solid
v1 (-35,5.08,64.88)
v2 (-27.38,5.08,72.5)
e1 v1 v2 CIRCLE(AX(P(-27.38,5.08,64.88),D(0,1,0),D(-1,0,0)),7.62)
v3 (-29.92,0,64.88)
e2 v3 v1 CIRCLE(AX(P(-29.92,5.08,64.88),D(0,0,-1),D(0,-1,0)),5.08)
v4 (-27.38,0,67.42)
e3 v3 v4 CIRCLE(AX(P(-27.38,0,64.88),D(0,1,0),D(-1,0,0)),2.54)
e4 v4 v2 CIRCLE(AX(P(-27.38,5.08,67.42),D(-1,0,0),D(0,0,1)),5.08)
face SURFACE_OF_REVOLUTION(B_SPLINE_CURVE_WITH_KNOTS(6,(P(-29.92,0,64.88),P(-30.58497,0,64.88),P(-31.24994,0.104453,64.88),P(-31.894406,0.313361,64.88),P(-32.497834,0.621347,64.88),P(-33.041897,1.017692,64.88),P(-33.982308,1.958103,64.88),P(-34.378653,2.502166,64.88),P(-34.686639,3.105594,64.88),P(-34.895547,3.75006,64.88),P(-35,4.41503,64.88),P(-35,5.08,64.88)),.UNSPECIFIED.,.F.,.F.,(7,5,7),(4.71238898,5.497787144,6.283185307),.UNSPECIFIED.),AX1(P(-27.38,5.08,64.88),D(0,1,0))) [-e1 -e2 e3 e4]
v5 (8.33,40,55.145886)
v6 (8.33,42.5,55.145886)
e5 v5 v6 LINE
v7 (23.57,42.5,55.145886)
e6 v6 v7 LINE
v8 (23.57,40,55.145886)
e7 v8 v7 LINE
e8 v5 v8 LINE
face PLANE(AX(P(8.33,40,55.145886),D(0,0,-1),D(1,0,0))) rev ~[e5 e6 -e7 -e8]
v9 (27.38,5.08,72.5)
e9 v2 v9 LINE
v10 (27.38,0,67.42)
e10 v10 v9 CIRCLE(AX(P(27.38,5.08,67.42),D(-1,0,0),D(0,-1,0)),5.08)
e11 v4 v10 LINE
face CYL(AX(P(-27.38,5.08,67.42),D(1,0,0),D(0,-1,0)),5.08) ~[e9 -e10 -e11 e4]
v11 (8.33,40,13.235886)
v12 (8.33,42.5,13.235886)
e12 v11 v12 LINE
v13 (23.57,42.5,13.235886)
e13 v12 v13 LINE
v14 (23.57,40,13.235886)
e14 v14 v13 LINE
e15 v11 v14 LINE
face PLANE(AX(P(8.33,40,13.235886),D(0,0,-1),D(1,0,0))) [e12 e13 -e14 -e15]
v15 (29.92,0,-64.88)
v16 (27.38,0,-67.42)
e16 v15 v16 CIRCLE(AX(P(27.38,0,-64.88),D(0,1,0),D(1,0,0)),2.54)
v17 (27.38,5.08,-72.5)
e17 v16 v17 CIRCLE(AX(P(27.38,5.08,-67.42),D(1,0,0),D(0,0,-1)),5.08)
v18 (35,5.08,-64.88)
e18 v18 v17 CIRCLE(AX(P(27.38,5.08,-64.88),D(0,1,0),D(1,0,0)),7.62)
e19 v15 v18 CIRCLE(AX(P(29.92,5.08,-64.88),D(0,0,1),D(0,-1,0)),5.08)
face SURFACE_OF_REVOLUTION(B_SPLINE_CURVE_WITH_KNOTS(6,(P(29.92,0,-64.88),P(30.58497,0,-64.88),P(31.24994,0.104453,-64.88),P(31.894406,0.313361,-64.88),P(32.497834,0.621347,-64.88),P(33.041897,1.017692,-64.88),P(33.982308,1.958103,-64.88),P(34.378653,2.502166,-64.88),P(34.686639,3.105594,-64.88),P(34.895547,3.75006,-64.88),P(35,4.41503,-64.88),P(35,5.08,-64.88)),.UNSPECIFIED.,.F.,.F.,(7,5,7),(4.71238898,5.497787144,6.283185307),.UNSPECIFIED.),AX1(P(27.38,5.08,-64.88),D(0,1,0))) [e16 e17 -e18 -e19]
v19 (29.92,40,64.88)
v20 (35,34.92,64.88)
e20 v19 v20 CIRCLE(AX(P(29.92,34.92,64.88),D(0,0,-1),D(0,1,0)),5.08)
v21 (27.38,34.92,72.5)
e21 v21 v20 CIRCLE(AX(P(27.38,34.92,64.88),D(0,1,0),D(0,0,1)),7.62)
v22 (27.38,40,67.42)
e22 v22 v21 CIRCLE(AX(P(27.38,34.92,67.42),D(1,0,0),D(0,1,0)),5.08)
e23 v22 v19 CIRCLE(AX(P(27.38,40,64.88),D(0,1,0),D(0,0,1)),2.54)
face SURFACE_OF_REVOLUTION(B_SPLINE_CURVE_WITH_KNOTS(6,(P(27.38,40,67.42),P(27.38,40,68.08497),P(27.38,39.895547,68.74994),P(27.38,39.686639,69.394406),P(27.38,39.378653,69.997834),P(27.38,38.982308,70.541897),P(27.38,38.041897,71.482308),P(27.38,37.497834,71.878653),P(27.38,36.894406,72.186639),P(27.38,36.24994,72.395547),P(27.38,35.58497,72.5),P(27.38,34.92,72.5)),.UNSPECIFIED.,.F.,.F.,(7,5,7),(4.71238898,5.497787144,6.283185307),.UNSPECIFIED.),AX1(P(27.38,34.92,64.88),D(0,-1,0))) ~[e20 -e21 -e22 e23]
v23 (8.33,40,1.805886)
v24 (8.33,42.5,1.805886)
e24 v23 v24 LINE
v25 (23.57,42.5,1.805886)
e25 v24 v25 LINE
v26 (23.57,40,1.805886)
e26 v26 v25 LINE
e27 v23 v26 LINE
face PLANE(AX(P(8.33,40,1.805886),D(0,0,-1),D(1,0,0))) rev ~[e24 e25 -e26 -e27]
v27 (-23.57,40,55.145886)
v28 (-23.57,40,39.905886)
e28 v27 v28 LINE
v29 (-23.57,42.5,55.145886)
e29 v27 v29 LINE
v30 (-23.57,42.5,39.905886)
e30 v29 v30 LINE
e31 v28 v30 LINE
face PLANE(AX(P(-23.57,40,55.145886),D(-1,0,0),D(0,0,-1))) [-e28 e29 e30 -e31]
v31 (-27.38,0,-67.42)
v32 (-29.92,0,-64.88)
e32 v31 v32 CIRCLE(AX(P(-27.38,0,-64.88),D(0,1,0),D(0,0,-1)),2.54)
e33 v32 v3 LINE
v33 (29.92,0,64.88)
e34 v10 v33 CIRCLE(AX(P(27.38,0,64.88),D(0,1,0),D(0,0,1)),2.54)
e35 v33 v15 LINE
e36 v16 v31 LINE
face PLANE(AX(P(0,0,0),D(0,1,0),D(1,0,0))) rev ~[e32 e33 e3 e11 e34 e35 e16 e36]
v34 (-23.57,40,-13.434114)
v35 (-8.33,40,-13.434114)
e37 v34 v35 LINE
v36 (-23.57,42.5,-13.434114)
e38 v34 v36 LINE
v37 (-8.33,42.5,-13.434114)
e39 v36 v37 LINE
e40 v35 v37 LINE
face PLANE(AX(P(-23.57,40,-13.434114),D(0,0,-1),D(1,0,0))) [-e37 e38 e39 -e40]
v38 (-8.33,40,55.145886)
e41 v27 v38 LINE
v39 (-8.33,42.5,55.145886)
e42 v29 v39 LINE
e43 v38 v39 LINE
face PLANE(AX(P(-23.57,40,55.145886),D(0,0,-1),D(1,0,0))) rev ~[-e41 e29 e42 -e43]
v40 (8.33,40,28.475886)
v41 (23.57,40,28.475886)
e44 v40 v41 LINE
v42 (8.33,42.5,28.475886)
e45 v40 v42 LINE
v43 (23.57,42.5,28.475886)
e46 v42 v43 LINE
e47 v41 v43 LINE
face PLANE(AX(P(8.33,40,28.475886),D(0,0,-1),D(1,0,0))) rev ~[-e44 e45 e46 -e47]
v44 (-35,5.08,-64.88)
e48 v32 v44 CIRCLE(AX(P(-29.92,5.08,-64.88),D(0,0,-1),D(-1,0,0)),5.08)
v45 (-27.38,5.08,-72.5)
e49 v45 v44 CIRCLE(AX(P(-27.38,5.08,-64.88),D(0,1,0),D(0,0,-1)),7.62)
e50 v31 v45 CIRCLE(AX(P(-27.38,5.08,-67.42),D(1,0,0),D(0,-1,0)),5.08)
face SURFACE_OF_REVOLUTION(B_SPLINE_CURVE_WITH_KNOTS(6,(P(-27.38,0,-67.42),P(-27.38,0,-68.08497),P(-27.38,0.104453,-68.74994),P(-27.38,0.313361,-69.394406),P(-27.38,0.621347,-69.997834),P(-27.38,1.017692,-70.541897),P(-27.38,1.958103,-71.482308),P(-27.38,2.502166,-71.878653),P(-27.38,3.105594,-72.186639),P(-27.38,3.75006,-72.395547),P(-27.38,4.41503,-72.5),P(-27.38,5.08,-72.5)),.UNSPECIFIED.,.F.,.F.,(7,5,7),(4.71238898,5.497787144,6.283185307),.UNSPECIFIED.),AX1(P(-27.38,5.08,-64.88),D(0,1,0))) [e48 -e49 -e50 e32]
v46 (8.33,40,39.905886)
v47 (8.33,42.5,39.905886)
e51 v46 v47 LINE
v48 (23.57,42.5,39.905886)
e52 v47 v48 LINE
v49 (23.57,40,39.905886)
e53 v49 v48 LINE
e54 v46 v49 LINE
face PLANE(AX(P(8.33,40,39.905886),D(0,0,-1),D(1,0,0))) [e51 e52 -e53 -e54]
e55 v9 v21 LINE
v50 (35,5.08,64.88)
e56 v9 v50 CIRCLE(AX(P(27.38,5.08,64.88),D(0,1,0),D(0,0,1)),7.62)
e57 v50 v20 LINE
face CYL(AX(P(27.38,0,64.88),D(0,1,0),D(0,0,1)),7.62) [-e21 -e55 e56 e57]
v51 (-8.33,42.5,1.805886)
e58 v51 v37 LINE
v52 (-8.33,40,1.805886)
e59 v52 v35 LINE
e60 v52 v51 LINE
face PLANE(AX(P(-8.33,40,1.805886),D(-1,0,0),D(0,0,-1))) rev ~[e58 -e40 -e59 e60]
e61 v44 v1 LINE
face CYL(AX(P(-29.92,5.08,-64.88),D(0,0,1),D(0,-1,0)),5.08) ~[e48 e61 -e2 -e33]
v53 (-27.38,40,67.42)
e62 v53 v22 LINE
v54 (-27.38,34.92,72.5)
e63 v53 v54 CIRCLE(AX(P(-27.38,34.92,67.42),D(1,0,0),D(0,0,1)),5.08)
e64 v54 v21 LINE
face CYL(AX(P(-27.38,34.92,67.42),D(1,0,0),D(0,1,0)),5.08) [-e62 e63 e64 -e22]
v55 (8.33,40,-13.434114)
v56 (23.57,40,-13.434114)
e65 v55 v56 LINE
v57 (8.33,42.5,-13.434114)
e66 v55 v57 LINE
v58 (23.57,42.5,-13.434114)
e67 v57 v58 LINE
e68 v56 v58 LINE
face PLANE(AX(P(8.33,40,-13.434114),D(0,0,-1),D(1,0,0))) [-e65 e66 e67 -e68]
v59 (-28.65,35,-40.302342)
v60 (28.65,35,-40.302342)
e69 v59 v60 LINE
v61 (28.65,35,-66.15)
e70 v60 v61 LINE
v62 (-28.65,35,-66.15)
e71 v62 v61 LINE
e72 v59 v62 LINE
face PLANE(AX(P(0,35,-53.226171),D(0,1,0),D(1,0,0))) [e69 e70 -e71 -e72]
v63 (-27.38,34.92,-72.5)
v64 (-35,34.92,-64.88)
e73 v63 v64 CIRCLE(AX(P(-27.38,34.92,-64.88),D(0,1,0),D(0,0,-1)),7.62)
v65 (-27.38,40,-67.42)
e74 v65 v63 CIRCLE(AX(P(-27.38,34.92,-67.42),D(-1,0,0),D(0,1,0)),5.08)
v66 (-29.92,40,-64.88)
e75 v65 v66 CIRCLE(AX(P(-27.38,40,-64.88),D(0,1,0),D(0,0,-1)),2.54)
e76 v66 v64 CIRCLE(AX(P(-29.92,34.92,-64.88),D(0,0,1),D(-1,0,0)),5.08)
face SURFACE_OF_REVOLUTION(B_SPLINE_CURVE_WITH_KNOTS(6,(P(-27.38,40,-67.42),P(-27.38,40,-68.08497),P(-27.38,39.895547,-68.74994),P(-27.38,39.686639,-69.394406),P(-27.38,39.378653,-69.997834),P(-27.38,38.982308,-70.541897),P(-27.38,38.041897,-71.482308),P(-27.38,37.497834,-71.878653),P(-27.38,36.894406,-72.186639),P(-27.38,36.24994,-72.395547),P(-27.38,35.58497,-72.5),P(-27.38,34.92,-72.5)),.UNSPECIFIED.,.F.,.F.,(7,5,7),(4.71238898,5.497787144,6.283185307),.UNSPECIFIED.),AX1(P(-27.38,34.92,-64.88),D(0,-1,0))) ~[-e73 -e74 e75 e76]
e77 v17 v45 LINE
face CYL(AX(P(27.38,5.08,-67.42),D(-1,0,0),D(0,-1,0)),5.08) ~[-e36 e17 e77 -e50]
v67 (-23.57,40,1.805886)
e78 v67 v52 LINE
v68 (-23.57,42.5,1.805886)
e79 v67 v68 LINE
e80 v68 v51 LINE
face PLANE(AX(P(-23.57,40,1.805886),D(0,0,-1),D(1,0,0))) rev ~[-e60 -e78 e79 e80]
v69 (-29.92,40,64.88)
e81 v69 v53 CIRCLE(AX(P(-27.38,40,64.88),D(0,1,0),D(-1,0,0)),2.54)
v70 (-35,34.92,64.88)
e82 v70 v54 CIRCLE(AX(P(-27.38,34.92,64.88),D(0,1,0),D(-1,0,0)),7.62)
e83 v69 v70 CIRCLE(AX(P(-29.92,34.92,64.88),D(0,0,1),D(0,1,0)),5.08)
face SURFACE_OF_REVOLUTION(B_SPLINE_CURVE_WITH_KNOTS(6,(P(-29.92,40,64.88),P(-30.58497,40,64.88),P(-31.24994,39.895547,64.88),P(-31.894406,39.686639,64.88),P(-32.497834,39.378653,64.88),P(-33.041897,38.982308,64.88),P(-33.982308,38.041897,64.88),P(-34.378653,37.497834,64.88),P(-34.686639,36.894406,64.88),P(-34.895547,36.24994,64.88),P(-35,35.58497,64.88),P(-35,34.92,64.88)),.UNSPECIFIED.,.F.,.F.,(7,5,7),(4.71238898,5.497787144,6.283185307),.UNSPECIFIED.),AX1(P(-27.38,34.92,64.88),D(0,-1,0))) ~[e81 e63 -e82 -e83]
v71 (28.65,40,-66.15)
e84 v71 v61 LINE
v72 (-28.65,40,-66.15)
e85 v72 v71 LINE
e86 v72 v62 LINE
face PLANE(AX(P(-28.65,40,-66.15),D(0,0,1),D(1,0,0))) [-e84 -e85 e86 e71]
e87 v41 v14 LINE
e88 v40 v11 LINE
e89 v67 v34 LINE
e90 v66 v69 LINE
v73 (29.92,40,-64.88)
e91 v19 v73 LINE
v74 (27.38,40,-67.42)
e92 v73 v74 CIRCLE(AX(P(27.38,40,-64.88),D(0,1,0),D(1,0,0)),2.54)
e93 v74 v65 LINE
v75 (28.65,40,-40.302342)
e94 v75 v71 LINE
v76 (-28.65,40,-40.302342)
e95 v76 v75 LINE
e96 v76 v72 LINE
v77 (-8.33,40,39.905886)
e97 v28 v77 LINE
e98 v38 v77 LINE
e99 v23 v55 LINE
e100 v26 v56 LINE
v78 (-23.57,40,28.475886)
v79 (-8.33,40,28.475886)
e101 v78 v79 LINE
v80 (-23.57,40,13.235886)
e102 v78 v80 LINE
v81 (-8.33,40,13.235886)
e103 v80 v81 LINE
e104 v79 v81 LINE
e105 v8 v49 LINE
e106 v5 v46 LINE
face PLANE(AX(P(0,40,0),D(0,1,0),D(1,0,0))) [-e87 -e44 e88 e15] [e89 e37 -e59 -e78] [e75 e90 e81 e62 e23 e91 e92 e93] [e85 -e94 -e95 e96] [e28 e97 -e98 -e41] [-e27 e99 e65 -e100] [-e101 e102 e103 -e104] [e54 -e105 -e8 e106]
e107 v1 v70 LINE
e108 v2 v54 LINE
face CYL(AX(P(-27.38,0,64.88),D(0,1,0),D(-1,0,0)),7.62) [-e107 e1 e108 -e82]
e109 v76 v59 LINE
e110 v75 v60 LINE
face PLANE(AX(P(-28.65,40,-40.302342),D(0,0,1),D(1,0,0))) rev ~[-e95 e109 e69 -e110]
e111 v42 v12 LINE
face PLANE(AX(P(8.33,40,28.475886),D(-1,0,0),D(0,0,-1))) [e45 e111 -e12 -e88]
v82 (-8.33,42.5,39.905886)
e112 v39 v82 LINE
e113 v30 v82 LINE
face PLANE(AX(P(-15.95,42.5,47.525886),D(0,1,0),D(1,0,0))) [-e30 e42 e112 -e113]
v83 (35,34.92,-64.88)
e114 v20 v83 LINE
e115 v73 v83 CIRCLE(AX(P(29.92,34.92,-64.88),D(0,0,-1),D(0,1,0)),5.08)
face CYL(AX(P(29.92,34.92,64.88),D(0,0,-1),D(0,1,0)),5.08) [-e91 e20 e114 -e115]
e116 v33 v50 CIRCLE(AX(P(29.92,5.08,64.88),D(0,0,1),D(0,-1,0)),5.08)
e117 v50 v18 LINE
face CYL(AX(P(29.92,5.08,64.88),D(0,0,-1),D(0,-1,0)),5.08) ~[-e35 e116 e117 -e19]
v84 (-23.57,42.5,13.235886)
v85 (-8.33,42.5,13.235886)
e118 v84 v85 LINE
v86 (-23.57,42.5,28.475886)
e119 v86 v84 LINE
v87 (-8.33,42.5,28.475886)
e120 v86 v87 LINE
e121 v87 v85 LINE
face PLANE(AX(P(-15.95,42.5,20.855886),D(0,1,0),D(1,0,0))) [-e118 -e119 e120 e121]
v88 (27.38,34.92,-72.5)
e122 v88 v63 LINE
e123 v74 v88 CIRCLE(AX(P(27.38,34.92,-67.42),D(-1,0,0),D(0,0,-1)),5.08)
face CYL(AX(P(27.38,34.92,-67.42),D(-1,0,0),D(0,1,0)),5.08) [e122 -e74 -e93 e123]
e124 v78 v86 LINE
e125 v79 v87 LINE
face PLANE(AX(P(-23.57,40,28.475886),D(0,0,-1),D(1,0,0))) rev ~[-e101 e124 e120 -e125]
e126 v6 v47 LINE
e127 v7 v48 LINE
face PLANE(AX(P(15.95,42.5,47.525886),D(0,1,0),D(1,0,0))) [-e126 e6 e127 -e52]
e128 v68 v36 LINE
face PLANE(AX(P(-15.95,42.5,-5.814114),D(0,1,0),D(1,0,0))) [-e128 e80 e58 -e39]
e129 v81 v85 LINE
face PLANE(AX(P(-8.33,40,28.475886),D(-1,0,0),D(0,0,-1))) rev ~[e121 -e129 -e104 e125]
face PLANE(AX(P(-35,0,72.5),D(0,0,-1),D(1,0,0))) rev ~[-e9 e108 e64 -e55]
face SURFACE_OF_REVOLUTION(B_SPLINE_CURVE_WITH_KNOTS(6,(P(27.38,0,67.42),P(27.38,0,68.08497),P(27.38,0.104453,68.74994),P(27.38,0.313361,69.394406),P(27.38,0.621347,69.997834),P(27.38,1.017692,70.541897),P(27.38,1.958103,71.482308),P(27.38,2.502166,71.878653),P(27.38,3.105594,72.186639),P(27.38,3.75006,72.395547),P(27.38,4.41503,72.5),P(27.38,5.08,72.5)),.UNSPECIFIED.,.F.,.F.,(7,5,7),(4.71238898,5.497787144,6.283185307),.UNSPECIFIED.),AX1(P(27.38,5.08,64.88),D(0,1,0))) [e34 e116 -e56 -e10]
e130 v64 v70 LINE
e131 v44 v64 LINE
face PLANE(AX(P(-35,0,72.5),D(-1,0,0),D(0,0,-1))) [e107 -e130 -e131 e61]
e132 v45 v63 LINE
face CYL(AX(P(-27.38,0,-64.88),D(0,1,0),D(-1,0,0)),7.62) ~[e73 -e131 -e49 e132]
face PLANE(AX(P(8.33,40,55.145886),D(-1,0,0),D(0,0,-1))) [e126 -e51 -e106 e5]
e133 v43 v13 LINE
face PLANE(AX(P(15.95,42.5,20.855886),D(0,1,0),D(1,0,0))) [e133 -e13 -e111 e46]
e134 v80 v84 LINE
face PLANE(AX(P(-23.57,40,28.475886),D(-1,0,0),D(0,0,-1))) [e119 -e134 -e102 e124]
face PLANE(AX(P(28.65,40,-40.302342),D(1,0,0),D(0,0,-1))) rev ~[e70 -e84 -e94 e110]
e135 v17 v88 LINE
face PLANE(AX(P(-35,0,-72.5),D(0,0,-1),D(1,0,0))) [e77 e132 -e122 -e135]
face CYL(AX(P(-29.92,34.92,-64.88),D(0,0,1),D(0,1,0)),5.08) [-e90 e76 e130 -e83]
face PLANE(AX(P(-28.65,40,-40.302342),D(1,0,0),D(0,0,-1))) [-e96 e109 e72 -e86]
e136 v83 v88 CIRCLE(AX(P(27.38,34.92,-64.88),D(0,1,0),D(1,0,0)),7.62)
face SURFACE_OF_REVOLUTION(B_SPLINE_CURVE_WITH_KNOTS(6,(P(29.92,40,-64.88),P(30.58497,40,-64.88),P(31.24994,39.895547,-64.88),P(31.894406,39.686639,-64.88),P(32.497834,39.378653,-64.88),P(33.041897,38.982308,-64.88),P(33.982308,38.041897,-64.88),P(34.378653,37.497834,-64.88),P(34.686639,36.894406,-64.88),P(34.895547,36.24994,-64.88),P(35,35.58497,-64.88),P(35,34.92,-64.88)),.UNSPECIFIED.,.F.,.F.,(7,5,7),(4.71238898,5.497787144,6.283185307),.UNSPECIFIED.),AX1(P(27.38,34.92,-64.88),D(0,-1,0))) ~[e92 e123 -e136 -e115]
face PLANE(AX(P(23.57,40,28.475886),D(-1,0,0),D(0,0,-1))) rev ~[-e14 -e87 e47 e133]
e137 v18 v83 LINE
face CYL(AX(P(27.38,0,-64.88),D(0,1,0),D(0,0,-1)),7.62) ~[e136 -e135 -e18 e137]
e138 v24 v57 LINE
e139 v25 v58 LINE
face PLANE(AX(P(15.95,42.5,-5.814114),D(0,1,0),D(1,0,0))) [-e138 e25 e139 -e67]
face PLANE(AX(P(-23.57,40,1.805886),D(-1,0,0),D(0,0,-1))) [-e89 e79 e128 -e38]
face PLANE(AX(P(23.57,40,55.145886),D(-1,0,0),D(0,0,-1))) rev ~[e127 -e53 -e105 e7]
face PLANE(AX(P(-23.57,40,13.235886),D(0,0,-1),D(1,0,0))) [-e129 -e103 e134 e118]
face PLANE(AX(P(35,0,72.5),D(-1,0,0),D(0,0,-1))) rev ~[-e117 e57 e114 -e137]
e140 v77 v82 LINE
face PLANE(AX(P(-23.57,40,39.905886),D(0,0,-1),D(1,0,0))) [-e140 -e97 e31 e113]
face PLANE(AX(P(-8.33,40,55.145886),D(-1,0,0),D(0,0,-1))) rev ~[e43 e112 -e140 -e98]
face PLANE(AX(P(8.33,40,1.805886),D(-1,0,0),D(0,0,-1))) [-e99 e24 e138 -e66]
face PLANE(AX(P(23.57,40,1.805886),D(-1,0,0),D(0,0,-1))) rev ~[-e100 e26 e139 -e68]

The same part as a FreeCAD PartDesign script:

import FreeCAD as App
import Part
import Sketcher
from FreeCAD import Vector
Q = App.Units.Quantity


def edges_at(feature, points):
    """Names of the edges that pass closest to the given points."""
    edges = feature.Shape.Edges
    near = lambda p: min(range(len(edges)), key=lambda i: edges[i].distToShape(Part.Vertex(*p))[0])
    return sorted({f"Edge{near(p) + 1}" for p in points})

doc = App.newDocument("Part")
body = doc.addObject("PartDesign::Body", "Body")

# Sketch on XZ plane
sketch1 = body.newObject("Sketcher::SketchObject", "Sketch")
sketch1.AttachmentSupport = (doc.getObject("XZ_Plane"), [""])
sketch1.MapMode = "FlatFace"
sketch1.addGeometry([
    Part.LineSegment(Vector(-35, -72, 0), Vector(-35, 72, 0)),
    Part.LineSegment(Vector(-35, 72, 0), Vector(35, 72, 0)),
    Part.LineSegment(Vector(35, 72, 0), Vector(35, -72, 0)),
    Part.LineSegment(Vector(35, -72, 0), Vector(-35, -72, 0)),
], False)
sketch1.addConstraint([
    Sketcher.Constraint("Coincident", 0, 2, 1, 1),
    Sketcher.Constraint("Coincident", 1, 2, 2, 1),
    Sketcher.Constraint("Coincident", 2, 2, 3, 1),
    Sketcher.Constraint("Coincident", 3, 2, 0, 1),
    Sketcher.Constraint("Vertical", 0),
    Sketcher.Constraint("Horizontal", 1),
    Sketcher.Constraint("Vertical", 2),
    Sketcher.Constraint("Horizontal", 3),
    Sketcher.Constraint("Symmetric", 0, 2, 2, 2, -1, 1),
    Sketcher.Constraint("DistanceX", 1, 1, 1, 2, Q("70 mm")),
    Sketcher.Constraint("DistanceY", 0, 1, 0, 2, Q("145 mm")),
])
pad1 = body.newObject("PartDesign::Pad", "Pad")
pad1.Profile = sketch1
pad1.Length = 40
pad1.Reversed = True

# Sketch on XZ plane
sketch2 = body.newObject("Sketcher::SketchObject", "Sketch001")
sketch2.AttachmentSupport = (doc.getObject("XZ_Plane"), [""])
sketch2.MapMode = "FlatFace"
sketch2.AttachmentOffset = App.Placement(Vector(0, 0, -40), App.Rotation())
sketch2.addGeometry([
    Part.LineSegment(Vector(-29, -66, 0), Vector(-29, -40, 0)),
    Part.LineSegment(Vector(-29, -40, 0), Vector(29, -40, 0)),
    Part.LineSegment(Vector(29, -40, 0), Vector(29, -66, 0)),
    Part.LineSegment(Vector(29, -66, 0), Vector(-29, -66, 0)),
], False)
sketch2.addConstraint([
    Sketcher.Constraint("Coincident", 0, 2, 1, 1),
    Sketcher.Constraint("Coincident", 1, 2, 2, 1),
    Sketcher.Constraint("Coincident", 2, 2, 3, 1),
    Sketcher.Constraint("Coincident", 3, 2, 0, 1),
    Sketcher.Constraint("Vertical", 0),
    Sketcher.Constraint("Horizontal", 1),
    Sketcher.Constraint("Vertical", 2),
    Sketcher.Constraint("Horizontal", 3),
    Sketcher.Constraint("DistanceX", 1, 1, 1, 2, Q("57.3 mm")),
    Sketcher.Constraint("DistanceX", 0, 2, -1, 1, Q("28.65 mm")),
    Sketcher.Constraint("DistanceY", 2, 2, -1, 1, Q("66.15 mm")),
    Sketcher.Constraint("DistanceY", 0, 1, 0, 2, Q("25.847658 mm")),
])
pocket1 = body.newObject("PartDesign::Pocket", "Pocket")
pocket1.Profile = sketch2
pocket1.Length = 5
pocket1.Reversed = True

# Sketch on XZ plane
sketch3 = body.newObject("Sketcher::SketchObject", "Sketch002")
sketch3.AttachmentSupport = (doc.getObject("XZ_Plane"), [""])
sketch3.MapMode = "FlatFace"
sketch3.AttachmentOffset = App.Placement(Vector(0, 0, -40), App.Rotation())
sketch3.addGeometry([
    Part.LineSegment(Vector(-24, -13, 0), Vector(-24, 2, 0)),  # 0
    Part.LineSegment(Vector(-24, 2, 0), Vector(-8, 2, 0)),  # 1
    Part.LineSegment(Vector(-8, 2, 0), Vector(-8, -13, 0)),  # 2
    Part.LineSegment(Vector(-8, -13, 0), Vector(-24, -13, 0)),  # 3
    Part.LineSegment(Vector(8, -13, 0), Vector(8, 2, 0)),  # 4
    Part.LineSegment(Vector(8, 2, 0), Vector(24, 2, 0)),  # 5
    Part.LineSegment(Vector(24, 2, 0), Vector(24, -13, 0)),  # 6
    Part.LineSegment(Vector(24, -13, 0), Vector(8, -13, 0)),  # 7
], False)
sketch3.addConstraint([
    Sketcher.Constraint("Coincident", 0, 2, 1, 1),
    Sketcher.Constraint("Coincident", 1, 2, 2, 1),
    Sketcher.Constraint("Coincident", 2, 2, 3, 1),
    Sketcher.Constraint("Coincident", 3, 2, 0, 1),
    Sketcher.Constraint("Coincident", 4, 2, 5, 1),
    Sketcher.Constraint("Coincident", 5, 2, 6, 1),
    Sketcher.Constraint("Coincident", 6, 2, 7, 1),
    Sketcher.Constraint("Coincident", 7, 2, 4, 1),
    Sketcher.Constraint("Vertical", 0),
    Sketcher.Constraint("Horizontal", 1),
    Sketcher.Constraint("Vertical", 2),
    Sketcher.Constraint("Horizontal", 3),
    Sketcher.Constraint("Vertical", 4),
    Sketcher.Constraint("Horizontal", 5),
    Sketcher.Constraint("Vertical", 6),
    Sketcher.Constraint("Horizontal", 7),
    Sketcher.Constraint("Symmetric", 1, 2, 4, 2, -2),
    Sketcher.Constraint("Symmetric", 3, 2, 6, 2, -2),
    Sketcher.Constraint("Equal", 7, 0),
    Sketcher.Constraint("DistanceX", 1, 1, 1, 2, Q("15.24 mm")),
    Sketcher.Constraint("DistanceX", 0, 2, 4, 2, Q("31.9 mm")),
    Sketcher.Constraint("DistanceY", -1, 1, 0, 2, Q("1.805886 mm")),
])
pad2 = body.newObject("PartDesign::Pad", "Pad001")
pad2.Profile = sketch3
pad2.Length = 2.5
pad2.Reversed = True
doc.recompute()

linearpattern = body.newObject("PartDesign::LinearPattern", "LinearPattern")
linearpattern.Originals = [pad2]
linearpattern.Direction = (doc.getObject("Z_Axis"), [""])
linearpattern.Mode = "offset"
linearpattern.Offset = 26.67
linearpattern.Occurrences = 3
body.Tip = linearpattern
doc.recompute()

fillet = body.newObject("PartDesign::Fillet", "Fillet")
fillet.Base = (linearpattern, edges_at(linearpattern, [
    (35, 20, 72.5),
    (-35, 20, 72.5),
    (-35, 20, -72.5),
    (35, 20, -72.5),
]))
fillet.Radius = 7.62
doc.recompute()

fillet2 = body.newObject("PartDesign::Fillet", "Fillet001")
fillet2.Base = (fillet, edges_at(fillet, [
    (35, 40, 0),
    (0, 40, 72.5),
    (0, 40, -72.5),
    (-35, 40, 0),
    (32.768, 40, -70.268),
    (-32.768, 40, -70.268),
    (-32.768, 40, 70.268),
    (32.768, 40, 70.268),
]))
fillet2.Radius = 5.08
doc.recompute()

fillet3 = body.newObject("PartDesign::Fillet", "Fillet002")
fillet3.Base = (fillet2, edges_at(fillet2, [
    (35, 0, 0),
    (0, 0, 72.5),
    (-35, 0, 0),
    (0, 0, -72.5),
    (32.768, 0, -70.268),
    (-32.768, 0, -70.268),
    (-32.768, 0, 70.268),
    (32.768, 0, 70.268),
]))
fillet3.Radius = 5.08

doc.recompute()
